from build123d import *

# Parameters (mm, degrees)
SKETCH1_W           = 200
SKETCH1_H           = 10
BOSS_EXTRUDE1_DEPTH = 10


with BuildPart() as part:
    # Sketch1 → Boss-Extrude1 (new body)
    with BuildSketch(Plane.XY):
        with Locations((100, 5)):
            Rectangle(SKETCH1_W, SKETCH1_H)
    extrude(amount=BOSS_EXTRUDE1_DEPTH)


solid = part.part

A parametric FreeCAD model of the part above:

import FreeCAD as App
import Part
import Sketcher

doc = App.newDocument("Part")
body = doc.addObject("PartDesign::Body", "Body")

sketch1 = body.newObject("Sketcher::SketchObject", "Sketch")
sketch1.AttachmentSupport = (doc.getObject("XY_Plane"), [""])
sketch1.MapMode = "FlatFace"
sketch1.addGeometry([
    Part.LineSegment(App.Vector(0, 10, 0), App.Vector(0, 0, 0)),
    Part.LineSegment(App.Vector(0, 0, 0), App.Vector(200, 0, 0)),
    Part.LineSegment(App.Vector(200, 0, 0), App.Vector(200, 10, 0)),
    Part.LineSegment(App.Vector(200, 10, 0), App.Vector(0, 10, 0)),
], False)
sketch1.addConstraint([
    Sketcher.Constraint("Coincident", 0, 2, 1, 1),
    Sketcher.Constraint("Coincident", 1, 2, 2, 1),
    Sketcher.Constraint("Coincident", 2, 2, 3, 1),
    Sketcher.Constraint("Coincident", 3, 2, 0, 1),
    Sketcher.Constraint("Vertical", 0),
    Sketcher.Constraint("Horizontal", 1),
    Sketcher.Constraint("Vertical", 2),
    Sketcher.Constraint("Horizontal", 3),
    Sketcher.Constraint("Coincident", 0, 2, -1, 1),
    Sketcher.Constraint("DistanceX", 1, 1, 1, 2, 200.0),
    Sketcher.Constraint("DistanceY", 0, 2, 0, 1, 10.0),
])
pad1 = body.newObject("PartDesign::Pad", "Pad")
pad1.Profile = sketch1
pad1.Length = 10

doc.recompute()
